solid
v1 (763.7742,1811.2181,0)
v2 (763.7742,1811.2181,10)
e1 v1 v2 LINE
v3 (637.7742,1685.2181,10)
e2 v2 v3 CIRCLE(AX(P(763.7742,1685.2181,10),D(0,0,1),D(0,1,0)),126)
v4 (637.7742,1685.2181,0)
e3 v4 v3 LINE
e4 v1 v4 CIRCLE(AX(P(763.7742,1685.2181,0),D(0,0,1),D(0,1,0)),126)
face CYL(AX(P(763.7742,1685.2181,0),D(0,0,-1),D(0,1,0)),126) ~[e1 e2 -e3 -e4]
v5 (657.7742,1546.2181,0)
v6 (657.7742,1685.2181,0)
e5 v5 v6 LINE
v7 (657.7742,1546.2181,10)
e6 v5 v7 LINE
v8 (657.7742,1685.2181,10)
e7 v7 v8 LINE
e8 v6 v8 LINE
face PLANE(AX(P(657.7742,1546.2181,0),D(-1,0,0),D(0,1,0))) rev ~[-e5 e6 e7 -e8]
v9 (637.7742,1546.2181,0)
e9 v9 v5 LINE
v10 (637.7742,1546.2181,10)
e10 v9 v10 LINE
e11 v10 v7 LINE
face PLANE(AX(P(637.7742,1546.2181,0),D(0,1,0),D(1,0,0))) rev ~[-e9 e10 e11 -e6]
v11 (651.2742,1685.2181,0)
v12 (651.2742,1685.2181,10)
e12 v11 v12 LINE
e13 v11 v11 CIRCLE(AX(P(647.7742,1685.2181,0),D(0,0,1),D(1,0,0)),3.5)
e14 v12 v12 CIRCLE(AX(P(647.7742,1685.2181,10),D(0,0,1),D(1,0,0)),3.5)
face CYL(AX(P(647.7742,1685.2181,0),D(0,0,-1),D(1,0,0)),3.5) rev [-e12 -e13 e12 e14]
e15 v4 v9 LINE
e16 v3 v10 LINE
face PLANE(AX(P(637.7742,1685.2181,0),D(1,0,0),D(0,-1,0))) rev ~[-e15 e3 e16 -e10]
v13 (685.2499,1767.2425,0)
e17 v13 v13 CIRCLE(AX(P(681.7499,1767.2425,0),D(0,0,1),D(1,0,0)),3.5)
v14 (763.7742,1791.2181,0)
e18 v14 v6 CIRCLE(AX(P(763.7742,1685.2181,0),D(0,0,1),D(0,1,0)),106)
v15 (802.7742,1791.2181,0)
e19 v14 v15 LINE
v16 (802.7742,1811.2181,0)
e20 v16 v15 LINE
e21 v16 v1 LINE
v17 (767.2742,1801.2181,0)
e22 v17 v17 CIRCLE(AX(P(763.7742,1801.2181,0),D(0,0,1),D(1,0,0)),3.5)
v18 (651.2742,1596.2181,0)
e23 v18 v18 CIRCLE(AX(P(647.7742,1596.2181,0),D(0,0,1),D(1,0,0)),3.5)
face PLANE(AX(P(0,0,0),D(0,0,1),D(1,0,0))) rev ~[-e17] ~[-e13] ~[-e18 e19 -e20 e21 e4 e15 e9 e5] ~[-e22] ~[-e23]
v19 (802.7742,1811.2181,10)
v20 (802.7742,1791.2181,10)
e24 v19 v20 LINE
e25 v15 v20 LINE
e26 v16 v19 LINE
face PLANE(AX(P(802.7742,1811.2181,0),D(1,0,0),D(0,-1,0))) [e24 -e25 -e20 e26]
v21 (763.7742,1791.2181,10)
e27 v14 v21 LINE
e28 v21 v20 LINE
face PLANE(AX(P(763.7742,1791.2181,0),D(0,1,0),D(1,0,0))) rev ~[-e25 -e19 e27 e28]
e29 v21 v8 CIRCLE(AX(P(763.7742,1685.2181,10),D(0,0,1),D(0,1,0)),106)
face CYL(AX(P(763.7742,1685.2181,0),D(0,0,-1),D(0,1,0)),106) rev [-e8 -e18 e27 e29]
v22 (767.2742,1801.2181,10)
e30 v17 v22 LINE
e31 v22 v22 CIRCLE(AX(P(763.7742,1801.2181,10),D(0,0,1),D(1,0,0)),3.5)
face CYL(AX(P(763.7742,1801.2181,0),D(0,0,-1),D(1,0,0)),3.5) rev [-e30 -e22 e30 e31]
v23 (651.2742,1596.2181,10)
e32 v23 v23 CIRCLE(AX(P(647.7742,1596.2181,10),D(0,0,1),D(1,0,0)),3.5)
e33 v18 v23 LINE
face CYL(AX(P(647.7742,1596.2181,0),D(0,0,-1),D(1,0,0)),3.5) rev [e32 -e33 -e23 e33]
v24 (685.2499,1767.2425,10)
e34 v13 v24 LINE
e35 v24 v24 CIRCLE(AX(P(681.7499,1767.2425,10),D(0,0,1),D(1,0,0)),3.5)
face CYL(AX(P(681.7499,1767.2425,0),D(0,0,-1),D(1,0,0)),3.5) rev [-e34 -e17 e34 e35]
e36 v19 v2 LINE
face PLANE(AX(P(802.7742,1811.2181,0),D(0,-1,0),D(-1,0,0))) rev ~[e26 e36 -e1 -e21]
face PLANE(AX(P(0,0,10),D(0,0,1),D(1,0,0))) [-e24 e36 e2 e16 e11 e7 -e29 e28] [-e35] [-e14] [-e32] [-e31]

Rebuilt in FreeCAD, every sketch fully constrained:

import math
import FreeCAD as App
import Part
import Sketcher
from FreeCAD import Vector
Q = App.Units.Quantity

doc = App.newDocument("Part")
params = doc.addObject("Spreadsheet::Sheet", "Params")
for row, (alias, value) in enumerate([
    ("sketch1_diameter", "7 mm"),
    ("sketch1_radius", "126 mm"),
    ("sketch1_radius2", "106 mm"),
    ("sketch1_width", "39 mm"),
    ("sketch1_height", "139 mm"),
    ("pad1_length", "10 mm"),
], start=1):
    params.set(f"A{row}", alias)
    params.set(f"B{row}", "=" + value)
    params.setAlias(f"B{row}", alias)

body = doc.addObject("PartDesign::Body", "Body")

# Sketch on XY plane
sketch1 = body.newObject("Sketcher::SketchObject", "Sketch")
sketch1.AttachmentSupport = (doc.getObject("XY_Plane"), [""])
sketch1.MapMode = "FlatFace"
sketch1.addGeometry(Part.LineSegment(Vector(802.8, 1811.2, 0), Vector(763.8, 1811.2, 0)), False)
sketch1.addGeometry(Part.ArcOfCircle(Part.Circle(Vector(763.8, 1685.2, 0), Vector(0, 0, 1), 126), math.radians(90), math.radians(180)), False)
sketch1.addGeometry(Part.LineSegment(Vector(637.8, 1685.2, 0), Vector(637.8, 1546.2, 0)), False)
sketch1.addGeometry(Part.LineSegment(Vector(637.8, 1546.2, 0), Vector(657.8, 1546.2, 0)), False)
sketch1.addGeometry(Part.LineSegment(Vector(657.8, 1546.2, 0), Vector(657.8, 1685.2, 0)), False)
sketch1.addGeometry(Part.ArcOfCircle(Part.Circle(Vector(763.8, 1685.2, 0), Vector(0, 0, 1), 106), math.radians(90), math.radians(180)), False)
sketch1.addGeometry(Part.LineSegment(Vector(763.8, 1791.2, 0), Vector(802.8, 1791.2, 0)), False)
sketch1.addGeometry(Part.LineSegment(Vector(802.8, 1791.2, 0), Vector(802.8, 1811.2, 0)), False)
sketch1.addGeometry(Part.Circle(Vector(647.8, 1596.2, 0), Vector(0, 0, 1), 3.5), False)
sketch1.addGeometry(Part.Circle(Vector(647.8, 1685.2, 0), Vector(0, 0, 1), 3.5), False)
sketch1.addGeometry(Part.Circle(Vector(681.7, 1767.2, 0), Vector(0, 0, 1), 3.5), False)
sketch1.addGeometry(Part.Circle(Vector(763.8, 1801.2, 0), Vector(0, 0, 1), 3.5), False)
sketch1.addConstraint(Sketcher.Constraint("Tangent", 0, 2, 1, 1))
sketch1.addConstraint(Sketcher.Constraint("Tangent", 1, 2, 2, 1))
sketch1.addConstraint(Sketcher.Constraint("Coincident", 2, 2, 3, 1))
sketch1.addConstraint(Sketcher.Constraint("Coincident", 3, 2, 4, 1))
sketch1.addConstraint(Sketcher.Constraint("Tangent", 4, 2, 5, 2))
sketch1.addConstraint(Sketcher.Constraint("Tangent", 5, 1, 6, 1))
sketch1.addConstraint(Sketcher.Constraint("Coincident", 6, 2, 7, 1))
sketch1.addConstraint(Sketcher.Constraint("Coincident", 7, 2, 0, 1))
sketch1.addConstraint(Sketcher.Constraint("Horizontal", 0))
sketch1.addConstraint(Sketcher.Constraint("Vertical", 2))
sketch1.addConstraint(Sketcher.Constraint("Horizontal", 3))
sketch1.addConstraint(Sketcher.Constraint("Vertical", 4))
sketch1.addConstraint(Sketcher.Constraint("Horizontal", 6))
sketch1.addConstraint(Sketcher.Constraint("Vertical", 7))
sketch1.addConstraint(Sketcher.Constraint("Coincident", 5, 3, 1, 3))
sketch1.addConstraint(Sketcher.Constraint("Equal", 8, 9))
sketch1.addConstraint(Sketcher.Constraint("Equal", 9, 10))
sketch1.addConstraint(Sketcher.Constraint("Equal", 10, 11))
sketch1.addConstraint(Sketcher.Constraint("Horizontal", 5, 3, 9, 3))
sketch1.addConstraint(Sketcher.Constraint("Vertical", 8, 3, 9, 3))
sketch1.addConstraint(Sketcher.Constraint("Vertical", 5, 3, 11, 3))
sketch1.addConstraint(Sketcher.Constraint("Diameter", 8, Q("7 mm")))
sketch1.addConstraint(Sketcher.Constraint("Radius", 1, Q("126 mm")))
sketch1.addConstraint(Sketcher.Constraint("Radius", 5, Q("106 mm")))
sketch1.addConstraint(Sketcher.Constraint("DistanceX", 0, 2, 0, 1, Q("39 mm")))
sketch1.addConstraint(Sketcher.Constraint("DistanceY", 2, 2, 2, 1, Q("139 mm")))
sketch1.addConstraint(Sketcher.Constraint("DistanceX", 8, 3, 1, 3, Q("116 mm")))
sketch1.addConstraint(Sketcher.Constraint("DistanceY", 8, 3, 1, 3, Q("89 mm")))
sketch1.addConstraint(Sketcher.Constraint("DistanceY", 1, 3, 11, 3, Q("116 mm")))
sketch1.addConstraint(Sketcher.Constraint("DistanceX", -1, 1, 10, 3, Q("681.75 mm")))
sketch1.addConstraint(Sketcher.Constraint("DistanceY", -1, 1, 1, 3, Q("1685.218 mm")))
sketch1.addConstraint(Sketcher.Constraint("DistanceX", -1, 1, 1, 3, Q("763.7742 mm")))
sketch1.addConstraint(Sketcher.Constraint("DistanceY", -1, 1, 10, 3, Q("1767.2425 mm")))
sketch1.setExpression("Constraints[21]", "Params.sketch1_diameter")
sketch1.setExpression("Constraints[22]", "Params.sketch1_radius")
sketch1.setExpression("Constraints[23]", "Params.sketch1_radius2")
sketch1.setExpression("Constraints[24]", "Params.sketch1_width")
sketch1.setExpression("Constraints[25]", "Params.sketch1_height")
pad1 = body.newObject("PartDesign::Pad", "Pad")
pad1.Profile = sketch1
pad1.setExpression("Length", "Params.pad1_length")

doc.recompute()
